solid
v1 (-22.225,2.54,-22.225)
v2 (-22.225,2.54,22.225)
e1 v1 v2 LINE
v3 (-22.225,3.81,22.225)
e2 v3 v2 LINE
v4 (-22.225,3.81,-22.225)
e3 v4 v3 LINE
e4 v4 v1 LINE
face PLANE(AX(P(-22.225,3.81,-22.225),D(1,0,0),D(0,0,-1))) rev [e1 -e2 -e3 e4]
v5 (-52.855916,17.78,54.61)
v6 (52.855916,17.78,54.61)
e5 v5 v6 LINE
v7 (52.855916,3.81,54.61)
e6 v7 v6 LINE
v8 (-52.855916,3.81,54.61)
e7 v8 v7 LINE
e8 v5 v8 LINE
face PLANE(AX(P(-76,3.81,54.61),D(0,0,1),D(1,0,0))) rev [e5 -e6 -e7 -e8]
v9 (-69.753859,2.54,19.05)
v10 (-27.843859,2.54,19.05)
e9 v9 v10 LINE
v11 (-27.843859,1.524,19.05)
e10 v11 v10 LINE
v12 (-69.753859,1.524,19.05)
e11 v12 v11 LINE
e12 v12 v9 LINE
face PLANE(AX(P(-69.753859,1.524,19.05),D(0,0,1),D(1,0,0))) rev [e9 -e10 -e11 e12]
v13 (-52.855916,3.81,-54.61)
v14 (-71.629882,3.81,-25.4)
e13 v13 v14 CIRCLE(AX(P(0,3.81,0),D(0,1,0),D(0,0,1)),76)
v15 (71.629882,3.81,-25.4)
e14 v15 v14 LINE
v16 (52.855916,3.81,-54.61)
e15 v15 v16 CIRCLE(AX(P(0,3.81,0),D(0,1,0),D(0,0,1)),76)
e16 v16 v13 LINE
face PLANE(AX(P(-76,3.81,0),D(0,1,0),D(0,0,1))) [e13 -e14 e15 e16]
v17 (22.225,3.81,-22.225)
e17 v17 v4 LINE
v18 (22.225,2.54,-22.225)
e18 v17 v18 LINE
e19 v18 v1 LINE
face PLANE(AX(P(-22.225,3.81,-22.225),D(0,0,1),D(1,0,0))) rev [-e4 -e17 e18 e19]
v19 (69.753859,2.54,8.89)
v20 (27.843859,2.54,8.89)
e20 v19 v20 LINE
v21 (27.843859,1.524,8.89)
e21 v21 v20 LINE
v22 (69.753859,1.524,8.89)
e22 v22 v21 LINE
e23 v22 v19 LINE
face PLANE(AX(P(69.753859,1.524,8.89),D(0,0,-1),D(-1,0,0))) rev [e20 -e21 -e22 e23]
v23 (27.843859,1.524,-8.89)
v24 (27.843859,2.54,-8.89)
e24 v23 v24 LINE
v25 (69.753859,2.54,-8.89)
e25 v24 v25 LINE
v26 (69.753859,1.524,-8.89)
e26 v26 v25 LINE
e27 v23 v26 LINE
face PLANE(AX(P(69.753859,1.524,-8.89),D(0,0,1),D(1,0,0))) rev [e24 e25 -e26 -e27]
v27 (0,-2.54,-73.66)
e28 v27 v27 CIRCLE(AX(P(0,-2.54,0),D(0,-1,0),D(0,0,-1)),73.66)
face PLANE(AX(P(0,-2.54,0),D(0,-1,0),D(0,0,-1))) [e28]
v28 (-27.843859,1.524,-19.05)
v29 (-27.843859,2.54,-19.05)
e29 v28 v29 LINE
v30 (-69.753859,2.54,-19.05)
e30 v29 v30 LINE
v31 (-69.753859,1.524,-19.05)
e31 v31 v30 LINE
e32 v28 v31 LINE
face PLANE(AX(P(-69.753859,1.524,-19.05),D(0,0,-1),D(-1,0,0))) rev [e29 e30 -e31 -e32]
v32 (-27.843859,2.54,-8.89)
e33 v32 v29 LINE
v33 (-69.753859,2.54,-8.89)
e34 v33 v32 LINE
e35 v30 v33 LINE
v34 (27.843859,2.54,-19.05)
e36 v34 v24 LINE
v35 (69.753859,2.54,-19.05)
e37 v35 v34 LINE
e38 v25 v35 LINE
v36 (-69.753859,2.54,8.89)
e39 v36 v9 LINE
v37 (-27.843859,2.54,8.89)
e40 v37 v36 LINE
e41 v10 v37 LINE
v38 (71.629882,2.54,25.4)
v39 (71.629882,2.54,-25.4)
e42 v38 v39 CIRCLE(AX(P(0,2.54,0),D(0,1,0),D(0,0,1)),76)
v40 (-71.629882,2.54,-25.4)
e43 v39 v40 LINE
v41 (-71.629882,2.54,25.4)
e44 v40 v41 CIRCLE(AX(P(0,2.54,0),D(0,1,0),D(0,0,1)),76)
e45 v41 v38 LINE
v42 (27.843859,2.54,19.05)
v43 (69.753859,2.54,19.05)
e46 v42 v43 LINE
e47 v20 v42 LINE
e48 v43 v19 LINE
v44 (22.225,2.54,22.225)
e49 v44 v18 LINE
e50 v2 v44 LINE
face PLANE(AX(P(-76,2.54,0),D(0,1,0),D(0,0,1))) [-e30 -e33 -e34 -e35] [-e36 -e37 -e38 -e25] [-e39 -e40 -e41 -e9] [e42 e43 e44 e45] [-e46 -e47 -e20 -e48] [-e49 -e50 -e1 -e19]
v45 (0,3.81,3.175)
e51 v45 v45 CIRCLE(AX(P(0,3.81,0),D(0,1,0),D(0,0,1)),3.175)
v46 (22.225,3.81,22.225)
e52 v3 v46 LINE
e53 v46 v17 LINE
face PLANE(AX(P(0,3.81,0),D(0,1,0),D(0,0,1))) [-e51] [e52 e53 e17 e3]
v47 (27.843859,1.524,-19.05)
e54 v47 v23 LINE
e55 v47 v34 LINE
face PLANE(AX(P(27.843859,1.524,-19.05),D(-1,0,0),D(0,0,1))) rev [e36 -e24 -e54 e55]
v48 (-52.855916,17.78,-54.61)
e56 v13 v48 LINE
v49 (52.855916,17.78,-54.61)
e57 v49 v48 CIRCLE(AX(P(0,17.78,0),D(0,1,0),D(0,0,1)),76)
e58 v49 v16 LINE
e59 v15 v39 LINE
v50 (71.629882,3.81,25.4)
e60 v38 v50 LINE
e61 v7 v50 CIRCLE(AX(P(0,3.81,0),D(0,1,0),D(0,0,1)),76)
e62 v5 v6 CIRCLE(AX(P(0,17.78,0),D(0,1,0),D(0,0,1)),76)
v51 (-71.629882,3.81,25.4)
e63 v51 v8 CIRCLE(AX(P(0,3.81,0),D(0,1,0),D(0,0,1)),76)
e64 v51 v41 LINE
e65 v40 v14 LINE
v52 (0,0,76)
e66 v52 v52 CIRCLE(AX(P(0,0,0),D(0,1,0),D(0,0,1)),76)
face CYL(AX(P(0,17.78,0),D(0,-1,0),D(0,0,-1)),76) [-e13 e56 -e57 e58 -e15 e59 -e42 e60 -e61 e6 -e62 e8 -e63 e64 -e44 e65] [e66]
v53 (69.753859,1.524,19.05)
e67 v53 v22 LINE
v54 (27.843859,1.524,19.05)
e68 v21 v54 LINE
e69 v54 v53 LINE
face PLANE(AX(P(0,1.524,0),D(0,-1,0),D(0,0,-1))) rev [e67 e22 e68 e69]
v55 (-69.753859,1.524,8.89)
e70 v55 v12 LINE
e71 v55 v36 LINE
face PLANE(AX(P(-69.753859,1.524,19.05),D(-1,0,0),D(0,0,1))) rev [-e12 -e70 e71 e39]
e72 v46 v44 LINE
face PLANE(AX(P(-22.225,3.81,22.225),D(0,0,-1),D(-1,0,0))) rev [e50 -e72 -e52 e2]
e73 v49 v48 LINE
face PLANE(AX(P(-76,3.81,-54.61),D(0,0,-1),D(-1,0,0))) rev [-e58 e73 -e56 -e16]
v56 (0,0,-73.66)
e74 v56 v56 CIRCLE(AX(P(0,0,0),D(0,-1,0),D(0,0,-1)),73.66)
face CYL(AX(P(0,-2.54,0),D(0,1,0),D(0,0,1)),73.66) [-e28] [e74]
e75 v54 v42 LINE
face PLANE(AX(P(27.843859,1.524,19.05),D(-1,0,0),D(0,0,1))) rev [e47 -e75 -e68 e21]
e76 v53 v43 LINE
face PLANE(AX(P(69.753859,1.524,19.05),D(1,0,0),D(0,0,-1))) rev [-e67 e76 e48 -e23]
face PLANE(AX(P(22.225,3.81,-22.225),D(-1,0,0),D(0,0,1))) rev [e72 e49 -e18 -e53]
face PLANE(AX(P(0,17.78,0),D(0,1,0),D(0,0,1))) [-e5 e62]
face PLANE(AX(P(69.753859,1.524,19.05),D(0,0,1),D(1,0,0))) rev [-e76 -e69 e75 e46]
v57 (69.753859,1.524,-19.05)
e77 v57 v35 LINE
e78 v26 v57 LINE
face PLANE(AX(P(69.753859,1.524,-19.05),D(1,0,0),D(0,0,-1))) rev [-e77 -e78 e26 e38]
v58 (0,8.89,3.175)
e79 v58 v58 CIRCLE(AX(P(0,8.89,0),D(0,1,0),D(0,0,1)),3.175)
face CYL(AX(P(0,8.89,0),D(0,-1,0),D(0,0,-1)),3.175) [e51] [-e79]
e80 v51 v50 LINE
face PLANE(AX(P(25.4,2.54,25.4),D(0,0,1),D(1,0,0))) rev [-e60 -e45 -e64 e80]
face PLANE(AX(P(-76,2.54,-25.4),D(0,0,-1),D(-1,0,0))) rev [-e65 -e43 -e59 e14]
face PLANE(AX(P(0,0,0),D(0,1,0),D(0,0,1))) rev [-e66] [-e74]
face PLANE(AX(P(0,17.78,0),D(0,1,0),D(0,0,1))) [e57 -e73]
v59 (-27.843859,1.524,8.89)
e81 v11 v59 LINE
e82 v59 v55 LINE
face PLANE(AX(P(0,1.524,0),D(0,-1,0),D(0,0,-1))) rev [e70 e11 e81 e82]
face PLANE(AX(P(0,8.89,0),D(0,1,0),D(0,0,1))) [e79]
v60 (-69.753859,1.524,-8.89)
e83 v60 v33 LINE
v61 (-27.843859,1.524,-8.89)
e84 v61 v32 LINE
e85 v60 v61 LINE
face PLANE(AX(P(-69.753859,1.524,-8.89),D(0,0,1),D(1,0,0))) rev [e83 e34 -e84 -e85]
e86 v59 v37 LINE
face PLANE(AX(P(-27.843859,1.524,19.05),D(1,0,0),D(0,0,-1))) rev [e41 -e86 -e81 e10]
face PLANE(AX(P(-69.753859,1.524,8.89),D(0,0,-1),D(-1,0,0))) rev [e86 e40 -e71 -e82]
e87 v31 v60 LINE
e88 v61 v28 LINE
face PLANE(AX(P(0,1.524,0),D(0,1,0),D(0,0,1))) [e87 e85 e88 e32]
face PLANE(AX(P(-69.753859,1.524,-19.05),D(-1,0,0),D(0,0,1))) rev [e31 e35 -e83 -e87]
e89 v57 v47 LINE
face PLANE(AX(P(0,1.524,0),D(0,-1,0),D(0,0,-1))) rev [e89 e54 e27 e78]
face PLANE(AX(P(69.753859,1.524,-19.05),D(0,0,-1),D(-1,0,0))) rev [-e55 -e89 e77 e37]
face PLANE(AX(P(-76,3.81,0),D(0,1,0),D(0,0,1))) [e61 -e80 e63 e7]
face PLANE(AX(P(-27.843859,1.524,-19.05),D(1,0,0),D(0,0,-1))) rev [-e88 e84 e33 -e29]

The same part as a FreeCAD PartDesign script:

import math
import FreeCAD as App
import Part
import Sketcher
from FreeCAD import Vector
Q = App.Units.Quantity

doc = App.newDocument("Part")
body = doc.addObject("PartDesign::Body", "Body")

# Sketch on XZ plane
sketch1 = body.newObject("Sketcher::SketchObject", "Sketch")
sketch1.AttachmentSupport = (doc.getObject("XZ_Plane"), [""])
sketch1.MapMode = "FlatFace"
sketch1.addGeometry(Part.Circle(Vector(0, 0, 0), Vector(0, 0, 1), 76), False)
sketch1.addConstraint([
    Sketcher.Constraint("Coincident", 0, 3, -1, 1),
    Sketcher.Constraint("Diameter", 0, 152.0),
])
pad1 = body.newObject("PartDesign::Pad", "Pad")
pad1.Profile = sketch1
pad1.Length = Q("0.7 in")
pad1.Reversed = True

# Sketch on XZ plane
sketch2 = body.newObject("Sketcher::SketchObject", "Sketch001")
sketch2.AttachmentSupport = (doc.getObject("XZ_Plane"), [""])
sketch2.MapMode = "FlatFace"
sketch2.AttachmentOffset = App.Placement(Vector(0, 0, -0.7 * 25.4), App.Rotation())
sketch2.addGeometry([
    Part.LineSegment(Vector(76, -55, 0), Vector(-76, -55, 0)),
    Part.ArcOfCircle(Part.Circle(Vector(-76, 0, 0), Vector(0, 0, 1), 55), math.radians(90), math.radians(270)),
    Part.LineSegment(Vector(-76, 55, 0), Vector(76, 55, 0)),
    Part.ArcOfCircle(Part.Circle(Vector(76, 0, 0), Vector(0, 0, 1), 55), math.radians(-90), math.radians(90)),
], False)
sketch2.addConstraint([
    Sketcher.Constraint("Tangent", 0, 2, 1, 2),
    Sketcher.Constraint("Tangent", 1, 1, 2, 1),
    Sketcher.Constraint("Tangent", 2, 2, 3, 2),
    Sketcher.Constraint("Tangent", 3, 1, 0, 1),
    Sketcher.Constraint("Horizontal", 0),
    Sketcher.Constraint("Horizontal", 2),
    Sketcher.Constraint("Symmetric", 1, 3, 3, 3, -1, 1),
    Sketcher.Constraint("Radius", 1, Q("2.15 in")),
    Sketcher.Constraint("DistanceX", 0, 2, 0, 1, 152.0),
])
pocket1 = body.newObject("PartDesign::Pocket", "Pocket")
pocket1.Profile = sketch2
pocket1.Length = Q("0.55 in")
pocket1.Reversed = True

# Sketch on XZ plane
sketch3 = body.newObject("Sketcher::SketchObject", "Sketch002")
sketch3.AttachmentSupport = (doc.getObject("XZ_Plane"), [""])
sketch3.MapMode = "FlatFace"
sketch3.AttachmentOffset = App.Placement(Vector(0, 0, -0.15 * 25.4), App.Rotation())
sketch3.addGeometry([
    Part.LineSegment(Vector(76, -25, 0), Vector(-76, -25, 0)),
    Part.ArcOfCircle(Part.Circle(Vector(-76, 0, 0), Vector(0, 0, 1), 25), math.radians(90), math.radians(270)),
    Part.LineSegment(Vector(-76, 25, 0), Vector(76, 25, 0)),
    Part.ArcOfCircle(Part.Circle(Vector(76, 0, 0), Vector(0, 0, 1), 25), math.radians(-90), math.radians(90)),
], False)
sketch3.addConstraint([
    Sketcher.Constraint("Tangent", 0, 2, 1, 2),
    Sketcher.Constraint("Tangent", 1, 1, 2, 1),
    Sketcher.Constraint("Tangent", 2, 2, 3, 2),
    Sketcher.Constraint("Tangent", 3, 1, 0, 1),
    Sketcher.Constraint("Horizontal", 0),
    Sketcher.Constraint("Horizontal", 2),
    Sketcher.Constraint("Symmetric", 1, 3, 3, 3, -1, 1),
    Sketcher.Constraint("Radius", 1, Q("1 in")),
    Sketcher.Constraint("DistanceX", 0, 2, 0, 1, 152.0),
])
pocket2 = body.newObject("PartDesign::Pocket", "Pocket001")
pocket2.Profile = sketch3
pocket2.Length = Q("0.05 in")
pocket2.Reversed = True

# Sketch on XZ plane
sketch4 = body.newObject("Sketcher::SketchObject", "Sketch003")
sketch4.AttachmentSupport = (doc.getObject("XZ_Plane"), [""])
sketch4.MapMode = "FlatFace"
sketch4.AttachmentOffset = App.Placement(Vector(0, 0, -0.1 * 25.4), App.Rotation())
sketch4.addGeometry([
    Part.LineSegment(Vector(-70, -19, 0), Vector(-70, -9, 0)),  # 0
    Part.LineSegment(Vector(-70, -9, 0), Vector(-28, -9, 0)),  # 1
    Part.LineSegment(Vector(-28, -9, 0), Vector(-28, -19, 0)),  # 2
    Part.LineSegment(Vector(-28, -19, 0), Vector(-70, -19, 0)),  # 3
    Part.LineSegment(Vector(-70, 9, 0), Vector(-70, 19, 0)),  # 4
    Part.LineSegment(Vector(-70, 19, 0), Vector(-28, 19, 0)),  # 5
    Part.LineSegment(Vector(-28, 19, 0), Vector(-28, 9, 0)),  # 6
    Part.LineSegment(Vector(-28, 9, 0), Vector(-70, 9, 0)),  # 7
    Part.LineSegment(Vector(28, 9, 0), Vector(28, 19, 0)),  # 8
    Part.LineSegment(Vector(28, 19, 0), Vector(70, 19, 0)),  # 9
    Part.LineSegment(Vector(70, 19, 0), Vector(70, 9, 0)),  # 10
    Part.LineSegment(Vector(70, 9, 0), Vector(28, 9, 0)),  # 11
    Part.LineSegment(Vector(28, -19, 0), Vector(28, -9, 0)),  # 12
    Part.LineSegment(Vector(28, -9, 0), Vector(70, -9, 0)),  # 13
    Part.LineSegment(Vector(70, -9, 0), Vector(70, -19, 0)),  # 14
    Part.LineSegment(Vector(70, -19, 0), Vector(28, -19, 0)),  # 15
], False)
sketch4.addConstraint([
    Sketcher.Constraint("Coincident", 0, 2, 1, 1),
    Sketcher.Constraint("Coincident", 1, 2, 2, 1),
    Sketcher.Constraint("Coincident", 2, 2, 3, 1),
    Sketcher.Constraint("Coincident", 3, 2, 0, 1),
    Sketcher.Constraint("Coincident", 4, 2, 5, 1),
    Sketcher.Constraint("Coincident", 5, 2, 6, 1),
    Sketcher.Constraint("Coincident", 6, 2, 7, 1),
    Sketcher.Constraint("Coincident", 7, 2, 4, 1),
    Sketcher.Constraint("Coincident", 8, 2, 9, 1),
    Sketcher.Constraint("Coincident", 9, 2, 10, 1),
    Sketcher.Constraint("Coincident", 10, 2, 11, 1),
    Sketcher.Constraint("Coincident", 11, 2, 8, 1),
    Sketcher.Constraint("Coincident", 12, 2, 13, 1),
    Sketcher.Constraint("Coincident", 13, 2, 14, 1),
    Sketcher.Constraint("Coincident", 14, 2, 15, 1),
    Sketcher.Constraint("Coincident", 15, 2, 12, 1),
    Sketcher.Constraint("Vertical", 0),
    Sketcher.Constraint("Horizontal", 1),
    Sketcher.Constraint("Vertical", 2),
    Sketcher.Constraint("Horizontal", 3),
    Sketcher.Constraint("Vertical", 4),
    Sketcher.Constraint("Horizontal", 5),
    Sketcher.Constraint("Vertical", 6),
    Sketcher.Constraint("Horizontal", 7),
    Sketcher.Constraint("Vertical", 8),
    Sketcher.Constraint("Horizontal", 9),
    Sketcher.Constraint("Vertical", 10),
    Sketcher.Constraint("Horizontal", 11),
    Sketcher.Constraint("Vertical", 12),
    Sketcher.Constraint("Horizontal", 13),
    Sketcher.Constraint("Vertical", 14),
    Sketcher.Constraint("Horizontal", 15),
    Sketcher.Constraint("Symmetric", 2, 2, 8, 2, -1, 1),
    Sketcher.Constraint("Symmetric", 0, 2, 10, 2, -1, 1),
    Sketcher.Constraint("Symmetric", 6, 2, 12, 2, -1, 1),
    Sketcher.Constraint("Symmetric", 4, 2, 14, 2, -1, 1),
    Sketcher.Constraint("Symmetric", 5, 2, 8, 2, -2),
    Sketcher.Constraint("Symmetric", 7, 2, 10, 2, -2),
    Sketcher.Constraint("DistanceY", 0, 1, 0, 2, Q("0.4 in")),
    Sketcher.Constraint("DistanceX", 1, 1, 1, 2, Q("1.65 in")),
    Sketcher.Constraint("DistanceY", 0, 2, 4, 2, Q("1.1 in")),
    Sketcher.Constraint("DistanceX", 0, 2, -1, 1, 69.753859),
])
pocket3 = body.newObject("PartDesign::Pocket", "Pocket002")
pocket3.Profile = sketch4
pocket3.Length = Q("0.04 in")
pocket3.Reversed = True

# Sketch on XZ plane
sketch5 = body.newObject("Sketcher::SketchObject", "Sketch004")
sketch5.AttachmentSupport = (doc.getObject("XZ_Plane"), [""])
sketch5.MapMode = "FlatFace"
sketch5.AttachmentOffset = App.Placement(Vector(0, 0, -0.1 * 25.4), App.Rotation())
sketch5.addGeometry([
    Part.LineSegment(Vector(-22, -22, 0), Vector(-22, 22, 0)),
    Part.LineSegment(Vector(-22, 22, 0), Vector(22, 22, 0)),
    Part.LineSegment(Vector(22, 22, 0), Vector(22, -22, 0)),
    Part.LineSegment(Vector(22, -22, 0), Vector(-22, -22, 0)),
], False)
sketch5.addConstraint([
    Sketcher.Constraint("Coincident", 0, 2, 1, 1),
    Sketcher.Constraint("Coincident", 1, 2, 2, 1),
    Sketcher.Constraint("Coincident", 2, 2, 3, 1),
    Sketcher.Constraint("Coincident", 3, 2, 0, 1),
    Sketcher.Constraint("Vertical", 0),
    Sketcher.Constraint("Horizontal", 1),
    Sketcher.Constraint("Vertical", 2),
    Sketcher.Constraint("Horizontal", 3),
    Sketcher.Constraint("Symmetric", 0, 2, 2, 2, -1, 1),
    Sketcher.Constraint("Equal", 3, 0),
    Sketcher.Constraint("DistanceX", 1, 1, 1, 2, Q("1.75 in")),
])
pad2 = body.newObject("PartDesign::Pad", "Pad001")
pad2.Profile = sketch5
pad2.Length = Q("0.05 in")
pad2.Reversed = True

# Sketch on XZ plane
sketch6 = body.newObject("Sketcher::SketchObject", "Sketch005")
sketch6.AttachmentSupport = (doc.getObject("XZ_Plane"), [""])
sketch6.MapMode = "FlatFace"
sketch6.AttachmentOffset = App.Placement(Vector(0, 0, -0.15 * 25.4), App.Rotation())
sketch6.addGeometry(Part.Circle(Vector(0, 0, 0), Vector(0, 0, 1), 3.2), False)
sketch6.addConstraint([
    Sketcher.Constraint("Coincident", 0, 3, -1, 1),
    Sketcher.Constraint("Diameter", 0, Q("0.25 in")),
])
pad3 = body.newObject("PartDesign::Pad", "Pad002")
pad3.Profile = sketch6
pad3.Length = Q("0.2 in")
pad3.Reversed = True

# Sketch on XZ plane
sketch7 = body.newObject("Sketcher::SketchObject", "Sketch006")
sketch7.AttachmentSupport = (doc.getObject("XZ_Plane"), [""])
sketch7.MapMode = "FlatFace"
sketch7.addGeometry(Part.Circle(Vector(0, 0, 0), Vector(0, 0, 1), 74), False)
sketch7.addConstraint([
    Sketcher.Constraint("Coincident", 0, 3, -1, 1),
    Sketcher.Constraint("Diameter", 0, Q("5.8 in")),
])
pad4 = body.newObject("PartDesign::Pad", "Pad003")
pad4.Profile = sketch7
pad4.Length = Q("0.1 in")

doc.recompute()
